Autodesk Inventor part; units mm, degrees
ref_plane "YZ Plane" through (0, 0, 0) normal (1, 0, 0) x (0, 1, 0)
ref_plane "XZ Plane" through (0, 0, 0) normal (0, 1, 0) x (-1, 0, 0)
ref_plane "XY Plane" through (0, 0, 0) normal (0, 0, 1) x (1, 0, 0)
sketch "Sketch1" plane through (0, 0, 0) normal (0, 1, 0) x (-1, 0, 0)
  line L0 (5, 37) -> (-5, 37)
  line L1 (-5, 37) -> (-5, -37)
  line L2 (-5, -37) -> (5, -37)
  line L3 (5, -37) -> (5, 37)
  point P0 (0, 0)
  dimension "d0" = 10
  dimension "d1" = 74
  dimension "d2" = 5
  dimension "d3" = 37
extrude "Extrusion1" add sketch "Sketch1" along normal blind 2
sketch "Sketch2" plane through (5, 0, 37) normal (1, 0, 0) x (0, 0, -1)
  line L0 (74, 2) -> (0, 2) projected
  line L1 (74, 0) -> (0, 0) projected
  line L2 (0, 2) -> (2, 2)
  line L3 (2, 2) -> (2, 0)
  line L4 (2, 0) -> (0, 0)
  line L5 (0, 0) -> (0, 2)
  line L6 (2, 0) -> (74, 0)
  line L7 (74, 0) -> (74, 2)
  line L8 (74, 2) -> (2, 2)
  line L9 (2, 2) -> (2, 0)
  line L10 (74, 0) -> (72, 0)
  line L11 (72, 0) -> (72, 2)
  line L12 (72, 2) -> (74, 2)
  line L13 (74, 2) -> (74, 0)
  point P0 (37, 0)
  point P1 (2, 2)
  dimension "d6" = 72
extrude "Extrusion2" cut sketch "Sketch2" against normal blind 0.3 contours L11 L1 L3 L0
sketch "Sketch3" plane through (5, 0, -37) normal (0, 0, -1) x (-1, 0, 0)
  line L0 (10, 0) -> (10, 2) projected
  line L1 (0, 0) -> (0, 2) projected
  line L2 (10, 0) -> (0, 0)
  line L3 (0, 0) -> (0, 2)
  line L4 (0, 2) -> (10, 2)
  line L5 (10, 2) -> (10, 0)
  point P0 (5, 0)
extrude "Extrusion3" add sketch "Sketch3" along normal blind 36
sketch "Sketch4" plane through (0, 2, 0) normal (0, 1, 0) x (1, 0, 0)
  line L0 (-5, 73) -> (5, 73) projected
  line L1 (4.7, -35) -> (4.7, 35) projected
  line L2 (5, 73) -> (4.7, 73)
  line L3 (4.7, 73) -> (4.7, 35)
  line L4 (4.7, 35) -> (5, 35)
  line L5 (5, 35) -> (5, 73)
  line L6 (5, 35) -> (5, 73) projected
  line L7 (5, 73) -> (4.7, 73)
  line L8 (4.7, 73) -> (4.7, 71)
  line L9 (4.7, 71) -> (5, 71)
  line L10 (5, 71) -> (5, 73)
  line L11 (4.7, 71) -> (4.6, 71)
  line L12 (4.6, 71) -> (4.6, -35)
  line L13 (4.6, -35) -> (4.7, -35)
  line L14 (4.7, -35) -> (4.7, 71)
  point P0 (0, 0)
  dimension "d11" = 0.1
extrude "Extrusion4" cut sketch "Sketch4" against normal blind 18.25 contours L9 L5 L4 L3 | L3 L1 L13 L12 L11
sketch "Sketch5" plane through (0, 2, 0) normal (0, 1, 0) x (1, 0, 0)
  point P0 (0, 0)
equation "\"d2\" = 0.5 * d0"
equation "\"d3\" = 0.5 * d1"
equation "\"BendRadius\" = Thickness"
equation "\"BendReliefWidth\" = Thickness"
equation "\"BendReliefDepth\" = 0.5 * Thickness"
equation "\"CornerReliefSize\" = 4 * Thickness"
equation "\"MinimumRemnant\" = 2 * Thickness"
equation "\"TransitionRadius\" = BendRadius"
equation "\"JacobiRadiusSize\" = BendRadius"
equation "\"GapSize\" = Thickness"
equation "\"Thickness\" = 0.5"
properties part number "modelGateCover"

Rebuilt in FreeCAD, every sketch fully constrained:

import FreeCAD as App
import Part
import Sketcher

V = App.Vector
Q = App.Units.Quantity


def add_polygon(sketch, points):
    """Adds a closed chain of lines whose ends are joined by coincident constraints."""
    first, n = sketch.GeometryCount, len(points)
    for a, b in zip(points, points[1:] + points[:1]):
        sketch.addGeometry(Part.LineSegment(App.Vector(*a, 0), App.Vector(*b, 0)), False)
    for i in range(n):
        sketch.addConstraint(Sketcher.Constraint("Coincident", first + i, 2, first + (i + 1) % n, 1))

doc = App.newDocument("Part")
params = doc.addObject("Spreadsheet::Sheet", "Params")
for row, (alias, value) in enumerate([
    ("sketch1_width", "10 mm"),
    ("sketch1_height", "74 mm"),
    ("pad1_length", "2 mm"),
    ("sketch2_width", "2 mm"),
    ("sketch2_height", "70 mm"),
    ("pocket1_length", "0.3 mm"),
    ("sketch3_width", "10 mm"),
    ("sketch3_height", "2 mm"),
    ("pad2_length", "36 mm"),
    ("sketch4_width", "0.1 mm"),
    ("sketch4_height", "106 mm"),
    ("sketch4_height2", "70 mm"),
    ("sketch4_width2", "0.4 mm"),
    ("pocket2_length", "18.25 mm"),
], start=1):
    params.set(f"A{row}", alias)
    params.set(f"B{row}", "=" + value)
    params.setAlias(f"B{row}", alias)

body = doc.addObject("PartDesign::Body", "Body")

sketch1 = body.newObject("Sketcher::SketchObject", "Sketch")
sketch1.AttachmentSupport = (doc.getObject("XZ_Plane"), [""])
sketch1.MapMode = "FlatFace"
add_polygon(sketch1, [(-5, -37), (-5, 37), (5, 37), (5, -37)])
sketch1.addConstraint([
    Sketcher.Constraint("Vertical", 0),
    Sketcher.Constraint("Horizontal", 1),
    Sketcher.Constraint("Vertical", 2),
    Sketcher.Constraint("Horizontal", 3),
    Sketcher.Constraint("Symmetric", 0, 2, 2, 2, -1, 1),
    Sketcher.Constraint("DistanceX", 1, 1, 1, 2, Q("10 mm")),
    Sketcher.Constraint("DistanceY", 0, 1, 0, 2, Q("74 mm")),
])
sketch1.setExpression("Constraints[9]", "Params.sketch1_width")
sketch1.setExpression("Constraints[10]", "Params.sketch1_height")
pad1 = body.newObject("PartDesign::Pad", "Pad")
pad1.Profile = sketch1
pad1.setExpression("Length", "Params.pad1_length")
pad1.Reversed = True

sketch2 = body.newObject("Sketcher::SketchObject", "Sketch001")
sketch2.AttachmentSupport = (doc.getObject("YZ_Plane"), [""])
sketch2.MapMode = "FlatFace"
sketch2.AttachmentOffset = App.Placement(V(0, 0, 5), App.Rotation())
add_polygon(sketch2, [(0, -35), (2, -35), (2, 35), (0, 35)])
sketch2.addConstraint([
    Sketcher.Constraint("Horizontal", 0),
    Sketcher.Constraint("Vertical", 1),
    Sketcher.Constraint("Horizontal", 2),
    Sketcher.Constraint("Vertical", 3),
    Sketcher.Constraint("Symmetric", 2, 2, 3, 2, -1, 1),
    Sketcher.Constraint("DistanceX", 0, 1, 0, 2, Q("2 mm")),
    Sketcher.Constraint("DistanceY", 1, 1, 1, 2, Q("70 mm")),
])
sketch2.setExpression("Constraints[9]", "Params.sketch2_width")
sketch2.setExpression("Constraints[10]", "Params.sketch2_height")
pocket1 = body.newObject("PartDesign::Pocket", "Pocket")
pocket1.Profile = sketch2
pocket1.setExpression("Length", "Params.pocket1_length")

sketch3 = body.newObject("Sketcher::SketchObject", "Sketch002")
sketch3.AttachmentSupport = (doc.getObject("XY_Plane"), [""])
sketch3.MapMode = "FlatFace"
sketch3.AttachmentOffset = App.Placement(V(0, 0, -37), App.Rotation())
add_polygon(sketch3, [(5, 0), (-5, 0), (-5, 2), (5, 2)])
sketch3.addConstraint([
    Sketcher.Constraint("Horizontal", 0),
    Sketcher.Constraint("Vertical", 1),
    Sketcher.Constraint("Horizontal", 2),
    Sketcher.Constraint("Vertical", 3),
    Sketcher.Constraint("Symmetric", 0, 2, 3, 2, -1, 1),
    Sketcher.Constraint("DistanceX", 0, 2, 0, 1, Q("10 mm")),
    Sketcher.Constraint("DistanceY", 1, 1, 1, 2, Q("2 mm")),
])
sketch3.setExpression("Constraints[9]", "Params.sketch3_width")
sketch3.setExpression("Constraints[10]", "Params.sketch3_height")
pad2 = body.newObject("PartDesign::Pad", "Pad001")
pad2.Profile = sketch3
pad2.setExpression("Length", "Params.pad2_length")
pad2.Reversed = True

sketch4 = body.newObject("Sketcher::SketchObject", "Sketch003")
sketch4.AttachmentSupport = (doc.getObject("XZ_Plane"), [""])
sketch4.MapMode = "FlatFace"
sketch4.AttachmentOffset = App.Placement(V(0, 0, -2), App.Rotation())
add_polygon(sketch4, [(5, -71), (4.6, -71), (4.6, 35), (4.7, 35), (4.7, -35), (5, -35)])
sketch4.addConstraint([
    Sketcher.Constraint("Horizontal", 0),
    Sketcher.Constraint("Vertical", 1),
    Sketcher.Constraint("Horizontal", 2),
    Sketcher.Constraint("Vertical", 3),
    Sketcher.Constraint("Horizontal", 4),
    Sketcher.Constraint("Vertical", 5),
    Sketcher.Constraint("DistanceX", 2, 1, 2, 2, Q("0.1 mm")),
    Sketcher.Constraint("DistanceY", 1, 1, 1, 2, Q("106 mm")),
    Sketcher.Constraint("DistanceY", 3, 2, 3, 1, Q("70 mm")),
    Sketcher.Constraint("DistanceX", 0, 2, 0, 1, Q("0.4 mm")),
    Sketcher.Constraint("DistanceY", 0, 2, -1, 1, Q("71 mm")),
    Sketcher.Constraint("DistanceX", -1, 1, 4, 2, Q("5 mm")),
])
sketch4.setExpression("Constraints[12]", "Params.sketch4_width")
sketch4.setExpression("Constraints[13]", "Params.sketch4_height")
sketch4.setExpression("Constraints[14]", "Params.sketch4_height2")
sketch4.setExpression("Constraints[15]", "Params.sketch4_width2")
pocket2 = body.newObject("PartDesign::Pocket", "Pocket001")
pocket2.Profile = sketch4
pocket2.setExpression("Length", "Params.pocket2_length")
pocket2.Reversed = True

doc.recompute()
